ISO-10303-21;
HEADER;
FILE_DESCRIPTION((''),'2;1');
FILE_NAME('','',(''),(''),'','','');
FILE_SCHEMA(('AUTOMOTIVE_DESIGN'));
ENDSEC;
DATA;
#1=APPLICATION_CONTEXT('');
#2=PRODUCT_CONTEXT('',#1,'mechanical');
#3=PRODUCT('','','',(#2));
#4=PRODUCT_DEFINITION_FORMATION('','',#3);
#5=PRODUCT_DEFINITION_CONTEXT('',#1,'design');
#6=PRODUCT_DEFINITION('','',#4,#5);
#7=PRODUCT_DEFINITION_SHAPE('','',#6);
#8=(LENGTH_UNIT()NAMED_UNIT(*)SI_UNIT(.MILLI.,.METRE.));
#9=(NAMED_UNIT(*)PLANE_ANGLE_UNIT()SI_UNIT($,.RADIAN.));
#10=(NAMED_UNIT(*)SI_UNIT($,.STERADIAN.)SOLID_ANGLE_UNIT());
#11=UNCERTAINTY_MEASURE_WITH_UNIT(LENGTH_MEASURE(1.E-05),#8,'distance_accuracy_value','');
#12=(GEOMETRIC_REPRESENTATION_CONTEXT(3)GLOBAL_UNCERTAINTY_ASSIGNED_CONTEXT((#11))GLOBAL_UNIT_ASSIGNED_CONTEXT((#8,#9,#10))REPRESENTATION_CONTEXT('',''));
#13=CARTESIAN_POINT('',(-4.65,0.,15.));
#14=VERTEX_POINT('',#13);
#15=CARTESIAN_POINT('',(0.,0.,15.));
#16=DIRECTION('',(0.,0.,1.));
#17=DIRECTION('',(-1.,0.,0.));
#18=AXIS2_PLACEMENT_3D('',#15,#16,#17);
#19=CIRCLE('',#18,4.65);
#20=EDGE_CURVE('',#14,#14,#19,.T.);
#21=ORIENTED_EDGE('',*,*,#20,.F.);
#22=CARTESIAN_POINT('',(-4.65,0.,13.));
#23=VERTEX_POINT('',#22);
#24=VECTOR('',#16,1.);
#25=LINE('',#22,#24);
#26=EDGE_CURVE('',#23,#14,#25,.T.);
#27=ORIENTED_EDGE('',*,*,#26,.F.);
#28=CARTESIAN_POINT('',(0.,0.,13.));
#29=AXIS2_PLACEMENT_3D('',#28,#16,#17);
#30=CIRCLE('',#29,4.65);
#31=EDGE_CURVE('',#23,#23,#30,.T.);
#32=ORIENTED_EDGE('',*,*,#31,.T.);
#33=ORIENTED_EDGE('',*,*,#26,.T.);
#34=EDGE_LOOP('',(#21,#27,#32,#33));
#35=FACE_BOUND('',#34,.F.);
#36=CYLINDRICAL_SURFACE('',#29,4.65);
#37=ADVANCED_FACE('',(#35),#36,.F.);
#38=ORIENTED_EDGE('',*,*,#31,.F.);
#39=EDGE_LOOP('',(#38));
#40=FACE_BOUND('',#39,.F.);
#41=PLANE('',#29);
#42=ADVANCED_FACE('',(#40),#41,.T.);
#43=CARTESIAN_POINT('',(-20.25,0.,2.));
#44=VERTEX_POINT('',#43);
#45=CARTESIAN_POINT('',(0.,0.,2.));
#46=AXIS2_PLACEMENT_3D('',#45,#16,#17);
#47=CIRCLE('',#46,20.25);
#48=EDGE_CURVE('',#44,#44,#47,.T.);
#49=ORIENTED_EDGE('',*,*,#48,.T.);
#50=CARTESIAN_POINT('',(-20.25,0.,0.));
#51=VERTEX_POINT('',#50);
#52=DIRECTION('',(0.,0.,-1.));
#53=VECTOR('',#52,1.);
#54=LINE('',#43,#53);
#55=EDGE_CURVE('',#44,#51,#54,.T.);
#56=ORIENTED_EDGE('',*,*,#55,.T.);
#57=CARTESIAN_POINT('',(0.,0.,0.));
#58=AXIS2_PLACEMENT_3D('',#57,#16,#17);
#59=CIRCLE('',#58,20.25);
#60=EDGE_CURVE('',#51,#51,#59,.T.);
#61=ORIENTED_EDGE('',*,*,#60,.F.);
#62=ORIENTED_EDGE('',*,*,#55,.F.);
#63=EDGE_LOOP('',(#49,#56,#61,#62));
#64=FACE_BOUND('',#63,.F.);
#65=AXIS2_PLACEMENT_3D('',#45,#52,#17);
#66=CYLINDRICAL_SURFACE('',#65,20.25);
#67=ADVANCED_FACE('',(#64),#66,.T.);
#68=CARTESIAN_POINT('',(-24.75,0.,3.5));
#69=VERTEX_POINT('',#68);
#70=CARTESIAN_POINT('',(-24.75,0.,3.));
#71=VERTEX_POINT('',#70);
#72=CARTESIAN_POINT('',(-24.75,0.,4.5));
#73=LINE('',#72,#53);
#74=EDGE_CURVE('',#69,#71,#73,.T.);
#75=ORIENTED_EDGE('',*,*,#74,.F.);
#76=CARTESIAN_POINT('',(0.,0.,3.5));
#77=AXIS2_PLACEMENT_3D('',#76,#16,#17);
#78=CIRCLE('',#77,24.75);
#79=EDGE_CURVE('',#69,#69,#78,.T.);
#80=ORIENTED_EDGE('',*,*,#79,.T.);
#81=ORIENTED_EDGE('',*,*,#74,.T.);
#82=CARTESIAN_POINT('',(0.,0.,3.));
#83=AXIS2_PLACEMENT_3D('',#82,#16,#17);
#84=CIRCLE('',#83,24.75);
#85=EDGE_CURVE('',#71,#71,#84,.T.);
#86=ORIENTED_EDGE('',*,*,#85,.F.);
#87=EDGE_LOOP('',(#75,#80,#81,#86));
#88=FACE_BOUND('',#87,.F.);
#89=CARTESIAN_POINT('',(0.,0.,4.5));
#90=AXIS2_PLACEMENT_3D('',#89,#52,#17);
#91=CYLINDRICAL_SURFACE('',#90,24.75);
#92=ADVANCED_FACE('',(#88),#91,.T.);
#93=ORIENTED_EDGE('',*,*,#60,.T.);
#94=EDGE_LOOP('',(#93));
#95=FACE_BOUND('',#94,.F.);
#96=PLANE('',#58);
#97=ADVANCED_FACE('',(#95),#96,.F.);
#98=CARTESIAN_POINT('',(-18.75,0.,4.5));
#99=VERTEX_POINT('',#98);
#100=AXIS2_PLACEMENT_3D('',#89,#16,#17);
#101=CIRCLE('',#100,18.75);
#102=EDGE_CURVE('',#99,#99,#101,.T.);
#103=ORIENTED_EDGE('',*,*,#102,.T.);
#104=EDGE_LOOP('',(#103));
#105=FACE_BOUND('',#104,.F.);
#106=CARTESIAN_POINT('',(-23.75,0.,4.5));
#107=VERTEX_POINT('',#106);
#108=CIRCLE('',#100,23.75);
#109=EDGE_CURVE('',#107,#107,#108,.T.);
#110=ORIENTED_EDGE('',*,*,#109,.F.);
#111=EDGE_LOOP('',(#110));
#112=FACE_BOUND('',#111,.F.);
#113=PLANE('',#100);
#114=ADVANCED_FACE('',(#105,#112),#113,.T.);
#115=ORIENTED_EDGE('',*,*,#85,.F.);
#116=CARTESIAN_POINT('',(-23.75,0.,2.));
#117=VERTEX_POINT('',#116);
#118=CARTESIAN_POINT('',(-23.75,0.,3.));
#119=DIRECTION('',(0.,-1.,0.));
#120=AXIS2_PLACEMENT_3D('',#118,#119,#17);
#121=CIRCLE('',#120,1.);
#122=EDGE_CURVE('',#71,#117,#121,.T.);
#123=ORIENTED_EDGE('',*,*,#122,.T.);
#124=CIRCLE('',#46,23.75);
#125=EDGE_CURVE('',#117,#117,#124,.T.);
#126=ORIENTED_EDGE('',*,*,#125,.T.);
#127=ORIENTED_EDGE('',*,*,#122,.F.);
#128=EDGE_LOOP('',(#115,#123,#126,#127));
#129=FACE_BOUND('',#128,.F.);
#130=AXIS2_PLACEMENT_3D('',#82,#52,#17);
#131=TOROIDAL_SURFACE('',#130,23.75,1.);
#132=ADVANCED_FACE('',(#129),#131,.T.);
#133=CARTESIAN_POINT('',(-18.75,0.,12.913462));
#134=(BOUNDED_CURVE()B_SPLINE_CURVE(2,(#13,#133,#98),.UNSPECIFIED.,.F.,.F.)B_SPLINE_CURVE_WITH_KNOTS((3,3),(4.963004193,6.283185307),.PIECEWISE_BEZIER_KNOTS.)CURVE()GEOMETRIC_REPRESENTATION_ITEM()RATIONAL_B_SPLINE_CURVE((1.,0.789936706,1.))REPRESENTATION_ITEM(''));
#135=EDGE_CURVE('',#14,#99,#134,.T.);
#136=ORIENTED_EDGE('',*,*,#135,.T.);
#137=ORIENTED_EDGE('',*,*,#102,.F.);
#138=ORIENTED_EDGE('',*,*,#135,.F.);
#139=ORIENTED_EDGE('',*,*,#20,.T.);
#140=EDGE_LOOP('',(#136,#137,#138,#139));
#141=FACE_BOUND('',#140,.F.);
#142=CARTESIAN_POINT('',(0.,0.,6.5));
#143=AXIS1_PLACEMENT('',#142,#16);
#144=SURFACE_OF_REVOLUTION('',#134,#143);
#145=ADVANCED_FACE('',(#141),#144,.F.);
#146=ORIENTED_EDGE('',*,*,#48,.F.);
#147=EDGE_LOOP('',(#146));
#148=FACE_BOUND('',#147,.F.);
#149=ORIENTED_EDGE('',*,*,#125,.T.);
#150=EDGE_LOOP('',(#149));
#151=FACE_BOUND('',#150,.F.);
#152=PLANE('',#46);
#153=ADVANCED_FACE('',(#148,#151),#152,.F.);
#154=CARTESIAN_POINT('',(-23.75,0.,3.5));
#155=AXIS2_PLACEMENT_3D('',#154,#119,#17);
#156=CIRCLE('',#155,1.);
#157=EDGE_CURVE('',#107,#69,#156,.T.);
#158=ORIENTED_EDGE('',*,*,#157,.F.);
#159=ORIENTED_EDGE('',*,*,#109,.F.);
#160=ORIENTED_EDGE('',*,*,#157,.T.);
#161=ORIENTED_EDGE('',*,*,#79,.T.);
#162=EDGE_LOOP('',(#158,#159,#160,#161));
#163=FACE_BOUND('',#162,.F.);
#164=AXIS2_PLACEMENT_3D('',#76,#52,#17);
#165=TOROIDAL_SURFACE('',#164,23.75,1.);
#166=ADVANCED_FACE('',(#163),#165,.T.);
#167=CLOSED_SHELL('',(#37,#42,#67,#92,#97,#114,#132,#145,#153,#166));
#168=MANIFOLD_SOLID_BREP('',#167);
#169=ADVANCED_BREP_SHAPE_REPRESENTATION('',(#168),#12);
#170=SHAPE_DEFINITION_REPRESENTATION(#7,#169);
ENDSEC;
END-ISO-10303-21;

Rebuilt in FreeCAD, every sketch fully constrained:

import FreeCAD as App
import Part
import Sketcher
from FreeCAD import Vector


def edges_at(feature, points):
    """Names of the edges that pass closest to the given points."""
    edges = feature.Shape.Edges
    near = lambda p: min(range(len(edges)), key=lambda i: edges[i].distToShape(Part.Vertex(*p))[0])
    return sorted({f"Edge{near(p) + 1}" for p in points})

doc = App.newDocument("Part")
body = doc.addObject("PartDesign::Body", "Body")

# Sketch on XZ plane
sketch1 = body.newObject("Sketcher::SketchObject", "Sketch")
sketch1.AttachmentSupport = (doc.getObject("XZ_Plane"), [""])
sketch1.MapMode = "FlatFace"
sketch1.addGeometry([
    Part.LineSegment(Vector(-20.25, 0, 0), Vector(0, 0, 0)),  # 0
    Part.LineSegment(Vector(0, 0, 0), Vector(0, 13, 0)),  # 1
    Part.LineSegment(Vector(0, 13, 0), Vector(-4.65, 13, 0)),  # 2
    Part.LineSegment(Vector(-4.65, 13, 0), Vector(-4.65, 15, 0)),  # 3
    Part.BSplineCurve([Vector(-4.65, 15, 0), Vector(-18.75, 12.913462, 0), Vector(-18.75, 4.5, 0)], [3, 3], [4.963004193, 6.283185307], False, 2, [1, 0.789936706, 1], False),  # 4
    Part.LineSegment(Vector(-18.75, 4.5, 0), Vector(-24.75, 4.5, 0)),  # 5
    Part.LineSegment(Vector(-24.75, 4.5, 0), Vector(-24.75, 2, 0)),  # 6
    Part.LineSegment(Vector(-24.75, 2, 0), Vector(-20.25, 2, 0)),  # 7
    Part.LineSegment(Vector(-20.25, 2, 0), Vector(-20.25, 0, 0)),  # 8
], False)
sketch1.addConstraint([
    Sketcher.Constraint("Block", 4),
    Sketcher.Constraint("Coincident", 0, 2, 1, 1),
    Sketcher.Constraint("Coincident", 1, 2, 2, 1),
    Sketcher.Constraint("Coincident", 2, 2, 3, 1),
    Sketcher.Constraint("Coincident", 3, 2, 4, 1),
    Sketcher.Constraint("Coincident", 4, 2, 5, 1),
    Sketcher.Constraint("Coincident", 5, 2, 6, 1),
    Sketcher.Constraint("Coincident", 6, 2, 7, 1),
    Sketcher.Constraint("Coincident", 7, 2, 8, 1),
    Sketcher.Constraint("Coincident", 8, 2, 0, 1),
    Sketcher.Constraint("Horizontal", 0),
    Sketcher.Constraint("Vertical", 1),
    Sketcher.Constraint("Horizontal", 2),
    Sketcher.Constraint("Vertical", 3),
    Sketcher.Constraint("Horizontal", 5),
    Sketcher.Constraint("Vertical", 6),
    Sketcher.Constraint("Horizontal", 7),
    Sketcher.Constraint("Vertical", 8),
    Sketcher.Constraint("Coincident", 0, 2, -1, 1),
    Sketcher.Constraint("Equal", 3, 8),
    Sketcher.Constraint("DistanceX", 5, 2, 5, 1, 6.0),
    Sketcher.Constraint("DistanceY", 1, 1, 1, 2, 13.0),
    Sketcher.Constraint("DistanceX", 7, 1, 7, 2, 4.5),
])
revolution = body.newObject("PartDesign::Revolution", "Revolution")
revolution.Profile = sketch1
revolution.ReferenceAxis = (sketch1, ["V_Axis"])
revolution.Angle = 360
doc.recompute()

fillet = body.newObject("PartDesign::Fillet", "Fillet")
fillet.Base = (revolution, edges_at(revolution, [(24.75, 0, 4.5), (24.75, 0, 2)]))
fillet.Radius = 1

doc.recompute()
